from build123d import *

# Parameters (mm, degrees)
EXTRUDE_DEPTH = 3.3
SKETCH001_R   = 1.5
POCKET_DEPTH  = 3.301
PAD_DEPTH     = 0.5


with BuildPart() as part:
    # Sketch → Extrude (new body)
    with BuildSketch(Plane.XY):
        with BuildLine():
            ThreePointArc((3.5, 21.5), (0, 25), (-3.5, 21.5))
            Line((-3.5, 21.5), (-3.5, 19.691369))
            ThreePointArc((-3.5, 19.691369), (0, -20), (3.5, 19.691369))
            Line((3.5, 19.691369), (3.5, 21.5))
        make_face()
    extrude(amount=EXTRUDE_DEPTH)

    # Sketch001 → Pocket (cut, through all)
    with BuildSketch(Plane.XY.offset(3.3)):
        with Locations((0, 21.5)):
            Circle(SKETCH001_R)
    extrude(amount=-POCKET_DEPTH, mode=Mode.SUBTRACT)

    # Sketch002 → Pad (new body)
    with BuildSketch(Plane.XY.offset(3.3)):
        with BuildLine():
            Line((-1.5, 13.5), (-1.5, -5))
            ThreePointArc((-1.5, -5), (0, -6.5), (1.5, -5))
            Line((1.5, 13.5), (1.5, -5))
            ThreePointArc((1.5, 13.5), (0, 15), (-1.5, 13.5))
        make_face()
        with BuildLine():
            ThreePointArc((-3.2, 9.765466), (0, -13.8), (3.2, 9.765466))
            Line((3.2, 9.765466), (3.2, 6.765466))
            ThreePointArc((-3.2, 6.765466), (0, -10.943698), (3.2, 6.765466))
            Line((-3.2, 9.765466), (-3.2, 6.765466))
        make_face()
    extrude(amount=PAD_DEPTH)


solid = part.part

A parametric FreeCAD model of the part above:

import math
import FreeCAD as App
import Part
import Sketcher
from FreeCAD import Vector

doc = App.newDocument("Part")
body = doc.addObject("PartDesign::Body", "Body")

# Sketch on XY plane
sketch1 = doc.addObject("Sketcher::SketchObject", "Sketch")
body.addObject(sketch1)
sketch1.AttachmentSupport = (doc.XY_Plane, [""])
sketch1.MapMode = "FlatFace"
sketch1.addGeometry([
    Part.ArcOfCircle(Part.Circle(Vector(0, 21.5, 0), Vector(0, 0, 1), 3.5), math.radians(0), math.radians(180)),
    Part.LineSegment(Vector(-3.5, 21.5, 0), Vector(-3.5, 19.7, 0)),
    Part.ArcOfCircle(Part.Circle(Vector(0, 0, 0), Vector(0, 0, 1), 20), math.radians(100), math.radians(440)),
    Part.LineSegment(Vector(3.5, 19.7, 0), Vector(3.5, 21.5, 0)),
], False)
sketch1.addConstraint([
    Sketcher.Constraint("Tangent", 0, 2, 1, 1),
    Sketcher.Constraint("Coincident", 1, 2, 2, 1),
    Sketcher.Constraint("Coincident", 2, 2, 3, 1),
    Sketcher.Constraint("Tangent", 3, 2, 0, 1),
    Sketcher.Constraint("Vertical", 1),
    Sketcher.Constraint("Vertical", 3),
    Sketcher.Constraint("Coincident", 2, 3, -1, 1),
    Sketcher.Constraint("PointOnObject", 0, 3, -2),
    Sketcher.Constraint("Radius", 2, 20.0),
    Sketcher.Constraint("Radius", 0, 3.5),
    Sketcher.Constraint("DistanceY", -1, 1, 0, 3, 21.5),
])
pad1 = doc.addObject("PartDesign::Pad", "Pad")
body.addObject(pad1)
pad1.Profile = sketch1
pad1.Length = 3.3

# Sketch on XY plane
sketch2 = doc.addObject("Sketcher::SketchObject", "Sketch001")
body.addObject(sketch2)
sketch2.AttachmentSupport = (doc.XY_Plane, [""])
sketch2.MapMode = "FlatFace"
sketch2.AttachmentOffset = App.Placement(Vector(0, 0, 3.3), App.Rotation())
sketch2.addGeometry(Part.Circle(Vector(0, 21.5, 0), Vector(0, 0, 1), 1.5), False)
sketch2.addConstraint([
    Sketcher.Constraint("PointOnObject", 0, 3, -2),
    Sketcher.Constraint("Diameter", 0, 3.0),
    Sketcher.Constraint("DistanceY", -1, 1, 0, 3, 21.5),
])
pocket1 = doc.addObject("PartDesign::Pocket", "Pocket")
body.addObject(pocket1)
pocket1.Profile = sketch2
pocket1.Type = "ThroughAll"

# Sketch on XY plane
sketch3 = doc.addObject("Sketcher::SketchObject", "Sketch002")
body.addObject(sketch3)
sketch3.AttachmentSupport = (doc.XY_Plane, [""])
sketch3.MapMode = "FlatFace"
sketch3.AttachmentOffset = App.Placement(Vector(0, 0, 3.3), App.Rotation())
sketch3.addGeometry([
    Part.LineSegment(Vector(-1.5, 13.5, 0), Vector(-1.5, -5, 0)),  # 0
    Part.ArcOfCircle(Part.Circle(Vector(0, -5, 0), Vector(0, 0, 1), 1.5), math.radians(180), math.radians(360)),  # 1
    Part.LineSegment(Vector(1.5, -5, 0), Vector(1.5, 13.5, 0)),  # 2
    Part.ArcOfCircle(Part.Circle(Vector(0, 13.5, 0), Vector(0, 0, 1), 1.5), math.radians(0), math.radians(180)),  # 3
    Part.ArcOfCircle(Part.Circle(Vector(0, -1.8, 0), Vector(0, 0, 1), 12), math.radians(105), math.radians(435)),  # 4
    Part.LineSegment(Vector(3.2, 9.8, 0), Vector(3.2, 6.8, 0)),  # 5
    Part.ArcOfCircle(Part.Circle(Vector(0, -1.8, 0), Vector(0, 0, 1), 9.1), math.radians(110), math.radians(430)),  # 6
    Part.LineSegment(Vector(-3.2, 6.8, 0), Vector(-3.2, 9.8, 0)),  # 7
], False)
sketch3.addConstraint([
    Sketcher.Constraint("Tangent", 0, 2, 1, 1),
    Sketcher.Constraint("Tangent", 1, 2, 2, 1),
    Sketcher.Constraint("Tangent", 2, 2, 3, 1),
    Sketcher.Constraint("Tangent", 3, 2, 0, 1),
    Sketcher.Constraint("Coincident", 4, 2, 5, 1),
    Sketcher.Constraint("Coincident", 5, 2, 6, 2),
    Sketcher.Constraint("Coincident", 6, 1, 7, 1),
    Sketcher.Constraint("Coincident", 7, 2, 4, 1),
    Sketcher.Constraint("Vertical", 0),
    Sketcher.Constraint("Vertical", 2),
    Sketcher.Constraint("Vertical", 5),
    Sketcher.Constraint("Vertical", 7),
    Sketcher.Constraint("Coincident", 6, 3, 4, 3),
    Sketcher.Constraint("Symmetric", 5, 2, 6, 1, -2),
    Sketcher.Constraint("PointOnObject", 1, 3, -2),
    Sketcher.Constraint("Radius", 4, 12.0),
    Sketcher.Constraint("Radius", 1, 1.5),
    Sketcher.Constraint("DistanceY", 5, 2, 5, 1, 3.0),
    Sketcher.Constraint("DistanceY", 0, 2, 0, 1, 18.5),
    Sketcher.Constraint("DistanceY", 1, 3, -1, 1, 5.0),
    Sketcher.Constraint("DistanceY", 4, 3, -1, 1, 1.8),
    Sketcher.Constraint("DistanceX", -1, 1, 4, 2, 3.2),
])
pad2 = doc.addObject("PartDesign::Pad", "Pad001")
body.addObject(pad2)
pad2.Profile = sketch3
pad2.Length = 0.5

doc.recompute()
